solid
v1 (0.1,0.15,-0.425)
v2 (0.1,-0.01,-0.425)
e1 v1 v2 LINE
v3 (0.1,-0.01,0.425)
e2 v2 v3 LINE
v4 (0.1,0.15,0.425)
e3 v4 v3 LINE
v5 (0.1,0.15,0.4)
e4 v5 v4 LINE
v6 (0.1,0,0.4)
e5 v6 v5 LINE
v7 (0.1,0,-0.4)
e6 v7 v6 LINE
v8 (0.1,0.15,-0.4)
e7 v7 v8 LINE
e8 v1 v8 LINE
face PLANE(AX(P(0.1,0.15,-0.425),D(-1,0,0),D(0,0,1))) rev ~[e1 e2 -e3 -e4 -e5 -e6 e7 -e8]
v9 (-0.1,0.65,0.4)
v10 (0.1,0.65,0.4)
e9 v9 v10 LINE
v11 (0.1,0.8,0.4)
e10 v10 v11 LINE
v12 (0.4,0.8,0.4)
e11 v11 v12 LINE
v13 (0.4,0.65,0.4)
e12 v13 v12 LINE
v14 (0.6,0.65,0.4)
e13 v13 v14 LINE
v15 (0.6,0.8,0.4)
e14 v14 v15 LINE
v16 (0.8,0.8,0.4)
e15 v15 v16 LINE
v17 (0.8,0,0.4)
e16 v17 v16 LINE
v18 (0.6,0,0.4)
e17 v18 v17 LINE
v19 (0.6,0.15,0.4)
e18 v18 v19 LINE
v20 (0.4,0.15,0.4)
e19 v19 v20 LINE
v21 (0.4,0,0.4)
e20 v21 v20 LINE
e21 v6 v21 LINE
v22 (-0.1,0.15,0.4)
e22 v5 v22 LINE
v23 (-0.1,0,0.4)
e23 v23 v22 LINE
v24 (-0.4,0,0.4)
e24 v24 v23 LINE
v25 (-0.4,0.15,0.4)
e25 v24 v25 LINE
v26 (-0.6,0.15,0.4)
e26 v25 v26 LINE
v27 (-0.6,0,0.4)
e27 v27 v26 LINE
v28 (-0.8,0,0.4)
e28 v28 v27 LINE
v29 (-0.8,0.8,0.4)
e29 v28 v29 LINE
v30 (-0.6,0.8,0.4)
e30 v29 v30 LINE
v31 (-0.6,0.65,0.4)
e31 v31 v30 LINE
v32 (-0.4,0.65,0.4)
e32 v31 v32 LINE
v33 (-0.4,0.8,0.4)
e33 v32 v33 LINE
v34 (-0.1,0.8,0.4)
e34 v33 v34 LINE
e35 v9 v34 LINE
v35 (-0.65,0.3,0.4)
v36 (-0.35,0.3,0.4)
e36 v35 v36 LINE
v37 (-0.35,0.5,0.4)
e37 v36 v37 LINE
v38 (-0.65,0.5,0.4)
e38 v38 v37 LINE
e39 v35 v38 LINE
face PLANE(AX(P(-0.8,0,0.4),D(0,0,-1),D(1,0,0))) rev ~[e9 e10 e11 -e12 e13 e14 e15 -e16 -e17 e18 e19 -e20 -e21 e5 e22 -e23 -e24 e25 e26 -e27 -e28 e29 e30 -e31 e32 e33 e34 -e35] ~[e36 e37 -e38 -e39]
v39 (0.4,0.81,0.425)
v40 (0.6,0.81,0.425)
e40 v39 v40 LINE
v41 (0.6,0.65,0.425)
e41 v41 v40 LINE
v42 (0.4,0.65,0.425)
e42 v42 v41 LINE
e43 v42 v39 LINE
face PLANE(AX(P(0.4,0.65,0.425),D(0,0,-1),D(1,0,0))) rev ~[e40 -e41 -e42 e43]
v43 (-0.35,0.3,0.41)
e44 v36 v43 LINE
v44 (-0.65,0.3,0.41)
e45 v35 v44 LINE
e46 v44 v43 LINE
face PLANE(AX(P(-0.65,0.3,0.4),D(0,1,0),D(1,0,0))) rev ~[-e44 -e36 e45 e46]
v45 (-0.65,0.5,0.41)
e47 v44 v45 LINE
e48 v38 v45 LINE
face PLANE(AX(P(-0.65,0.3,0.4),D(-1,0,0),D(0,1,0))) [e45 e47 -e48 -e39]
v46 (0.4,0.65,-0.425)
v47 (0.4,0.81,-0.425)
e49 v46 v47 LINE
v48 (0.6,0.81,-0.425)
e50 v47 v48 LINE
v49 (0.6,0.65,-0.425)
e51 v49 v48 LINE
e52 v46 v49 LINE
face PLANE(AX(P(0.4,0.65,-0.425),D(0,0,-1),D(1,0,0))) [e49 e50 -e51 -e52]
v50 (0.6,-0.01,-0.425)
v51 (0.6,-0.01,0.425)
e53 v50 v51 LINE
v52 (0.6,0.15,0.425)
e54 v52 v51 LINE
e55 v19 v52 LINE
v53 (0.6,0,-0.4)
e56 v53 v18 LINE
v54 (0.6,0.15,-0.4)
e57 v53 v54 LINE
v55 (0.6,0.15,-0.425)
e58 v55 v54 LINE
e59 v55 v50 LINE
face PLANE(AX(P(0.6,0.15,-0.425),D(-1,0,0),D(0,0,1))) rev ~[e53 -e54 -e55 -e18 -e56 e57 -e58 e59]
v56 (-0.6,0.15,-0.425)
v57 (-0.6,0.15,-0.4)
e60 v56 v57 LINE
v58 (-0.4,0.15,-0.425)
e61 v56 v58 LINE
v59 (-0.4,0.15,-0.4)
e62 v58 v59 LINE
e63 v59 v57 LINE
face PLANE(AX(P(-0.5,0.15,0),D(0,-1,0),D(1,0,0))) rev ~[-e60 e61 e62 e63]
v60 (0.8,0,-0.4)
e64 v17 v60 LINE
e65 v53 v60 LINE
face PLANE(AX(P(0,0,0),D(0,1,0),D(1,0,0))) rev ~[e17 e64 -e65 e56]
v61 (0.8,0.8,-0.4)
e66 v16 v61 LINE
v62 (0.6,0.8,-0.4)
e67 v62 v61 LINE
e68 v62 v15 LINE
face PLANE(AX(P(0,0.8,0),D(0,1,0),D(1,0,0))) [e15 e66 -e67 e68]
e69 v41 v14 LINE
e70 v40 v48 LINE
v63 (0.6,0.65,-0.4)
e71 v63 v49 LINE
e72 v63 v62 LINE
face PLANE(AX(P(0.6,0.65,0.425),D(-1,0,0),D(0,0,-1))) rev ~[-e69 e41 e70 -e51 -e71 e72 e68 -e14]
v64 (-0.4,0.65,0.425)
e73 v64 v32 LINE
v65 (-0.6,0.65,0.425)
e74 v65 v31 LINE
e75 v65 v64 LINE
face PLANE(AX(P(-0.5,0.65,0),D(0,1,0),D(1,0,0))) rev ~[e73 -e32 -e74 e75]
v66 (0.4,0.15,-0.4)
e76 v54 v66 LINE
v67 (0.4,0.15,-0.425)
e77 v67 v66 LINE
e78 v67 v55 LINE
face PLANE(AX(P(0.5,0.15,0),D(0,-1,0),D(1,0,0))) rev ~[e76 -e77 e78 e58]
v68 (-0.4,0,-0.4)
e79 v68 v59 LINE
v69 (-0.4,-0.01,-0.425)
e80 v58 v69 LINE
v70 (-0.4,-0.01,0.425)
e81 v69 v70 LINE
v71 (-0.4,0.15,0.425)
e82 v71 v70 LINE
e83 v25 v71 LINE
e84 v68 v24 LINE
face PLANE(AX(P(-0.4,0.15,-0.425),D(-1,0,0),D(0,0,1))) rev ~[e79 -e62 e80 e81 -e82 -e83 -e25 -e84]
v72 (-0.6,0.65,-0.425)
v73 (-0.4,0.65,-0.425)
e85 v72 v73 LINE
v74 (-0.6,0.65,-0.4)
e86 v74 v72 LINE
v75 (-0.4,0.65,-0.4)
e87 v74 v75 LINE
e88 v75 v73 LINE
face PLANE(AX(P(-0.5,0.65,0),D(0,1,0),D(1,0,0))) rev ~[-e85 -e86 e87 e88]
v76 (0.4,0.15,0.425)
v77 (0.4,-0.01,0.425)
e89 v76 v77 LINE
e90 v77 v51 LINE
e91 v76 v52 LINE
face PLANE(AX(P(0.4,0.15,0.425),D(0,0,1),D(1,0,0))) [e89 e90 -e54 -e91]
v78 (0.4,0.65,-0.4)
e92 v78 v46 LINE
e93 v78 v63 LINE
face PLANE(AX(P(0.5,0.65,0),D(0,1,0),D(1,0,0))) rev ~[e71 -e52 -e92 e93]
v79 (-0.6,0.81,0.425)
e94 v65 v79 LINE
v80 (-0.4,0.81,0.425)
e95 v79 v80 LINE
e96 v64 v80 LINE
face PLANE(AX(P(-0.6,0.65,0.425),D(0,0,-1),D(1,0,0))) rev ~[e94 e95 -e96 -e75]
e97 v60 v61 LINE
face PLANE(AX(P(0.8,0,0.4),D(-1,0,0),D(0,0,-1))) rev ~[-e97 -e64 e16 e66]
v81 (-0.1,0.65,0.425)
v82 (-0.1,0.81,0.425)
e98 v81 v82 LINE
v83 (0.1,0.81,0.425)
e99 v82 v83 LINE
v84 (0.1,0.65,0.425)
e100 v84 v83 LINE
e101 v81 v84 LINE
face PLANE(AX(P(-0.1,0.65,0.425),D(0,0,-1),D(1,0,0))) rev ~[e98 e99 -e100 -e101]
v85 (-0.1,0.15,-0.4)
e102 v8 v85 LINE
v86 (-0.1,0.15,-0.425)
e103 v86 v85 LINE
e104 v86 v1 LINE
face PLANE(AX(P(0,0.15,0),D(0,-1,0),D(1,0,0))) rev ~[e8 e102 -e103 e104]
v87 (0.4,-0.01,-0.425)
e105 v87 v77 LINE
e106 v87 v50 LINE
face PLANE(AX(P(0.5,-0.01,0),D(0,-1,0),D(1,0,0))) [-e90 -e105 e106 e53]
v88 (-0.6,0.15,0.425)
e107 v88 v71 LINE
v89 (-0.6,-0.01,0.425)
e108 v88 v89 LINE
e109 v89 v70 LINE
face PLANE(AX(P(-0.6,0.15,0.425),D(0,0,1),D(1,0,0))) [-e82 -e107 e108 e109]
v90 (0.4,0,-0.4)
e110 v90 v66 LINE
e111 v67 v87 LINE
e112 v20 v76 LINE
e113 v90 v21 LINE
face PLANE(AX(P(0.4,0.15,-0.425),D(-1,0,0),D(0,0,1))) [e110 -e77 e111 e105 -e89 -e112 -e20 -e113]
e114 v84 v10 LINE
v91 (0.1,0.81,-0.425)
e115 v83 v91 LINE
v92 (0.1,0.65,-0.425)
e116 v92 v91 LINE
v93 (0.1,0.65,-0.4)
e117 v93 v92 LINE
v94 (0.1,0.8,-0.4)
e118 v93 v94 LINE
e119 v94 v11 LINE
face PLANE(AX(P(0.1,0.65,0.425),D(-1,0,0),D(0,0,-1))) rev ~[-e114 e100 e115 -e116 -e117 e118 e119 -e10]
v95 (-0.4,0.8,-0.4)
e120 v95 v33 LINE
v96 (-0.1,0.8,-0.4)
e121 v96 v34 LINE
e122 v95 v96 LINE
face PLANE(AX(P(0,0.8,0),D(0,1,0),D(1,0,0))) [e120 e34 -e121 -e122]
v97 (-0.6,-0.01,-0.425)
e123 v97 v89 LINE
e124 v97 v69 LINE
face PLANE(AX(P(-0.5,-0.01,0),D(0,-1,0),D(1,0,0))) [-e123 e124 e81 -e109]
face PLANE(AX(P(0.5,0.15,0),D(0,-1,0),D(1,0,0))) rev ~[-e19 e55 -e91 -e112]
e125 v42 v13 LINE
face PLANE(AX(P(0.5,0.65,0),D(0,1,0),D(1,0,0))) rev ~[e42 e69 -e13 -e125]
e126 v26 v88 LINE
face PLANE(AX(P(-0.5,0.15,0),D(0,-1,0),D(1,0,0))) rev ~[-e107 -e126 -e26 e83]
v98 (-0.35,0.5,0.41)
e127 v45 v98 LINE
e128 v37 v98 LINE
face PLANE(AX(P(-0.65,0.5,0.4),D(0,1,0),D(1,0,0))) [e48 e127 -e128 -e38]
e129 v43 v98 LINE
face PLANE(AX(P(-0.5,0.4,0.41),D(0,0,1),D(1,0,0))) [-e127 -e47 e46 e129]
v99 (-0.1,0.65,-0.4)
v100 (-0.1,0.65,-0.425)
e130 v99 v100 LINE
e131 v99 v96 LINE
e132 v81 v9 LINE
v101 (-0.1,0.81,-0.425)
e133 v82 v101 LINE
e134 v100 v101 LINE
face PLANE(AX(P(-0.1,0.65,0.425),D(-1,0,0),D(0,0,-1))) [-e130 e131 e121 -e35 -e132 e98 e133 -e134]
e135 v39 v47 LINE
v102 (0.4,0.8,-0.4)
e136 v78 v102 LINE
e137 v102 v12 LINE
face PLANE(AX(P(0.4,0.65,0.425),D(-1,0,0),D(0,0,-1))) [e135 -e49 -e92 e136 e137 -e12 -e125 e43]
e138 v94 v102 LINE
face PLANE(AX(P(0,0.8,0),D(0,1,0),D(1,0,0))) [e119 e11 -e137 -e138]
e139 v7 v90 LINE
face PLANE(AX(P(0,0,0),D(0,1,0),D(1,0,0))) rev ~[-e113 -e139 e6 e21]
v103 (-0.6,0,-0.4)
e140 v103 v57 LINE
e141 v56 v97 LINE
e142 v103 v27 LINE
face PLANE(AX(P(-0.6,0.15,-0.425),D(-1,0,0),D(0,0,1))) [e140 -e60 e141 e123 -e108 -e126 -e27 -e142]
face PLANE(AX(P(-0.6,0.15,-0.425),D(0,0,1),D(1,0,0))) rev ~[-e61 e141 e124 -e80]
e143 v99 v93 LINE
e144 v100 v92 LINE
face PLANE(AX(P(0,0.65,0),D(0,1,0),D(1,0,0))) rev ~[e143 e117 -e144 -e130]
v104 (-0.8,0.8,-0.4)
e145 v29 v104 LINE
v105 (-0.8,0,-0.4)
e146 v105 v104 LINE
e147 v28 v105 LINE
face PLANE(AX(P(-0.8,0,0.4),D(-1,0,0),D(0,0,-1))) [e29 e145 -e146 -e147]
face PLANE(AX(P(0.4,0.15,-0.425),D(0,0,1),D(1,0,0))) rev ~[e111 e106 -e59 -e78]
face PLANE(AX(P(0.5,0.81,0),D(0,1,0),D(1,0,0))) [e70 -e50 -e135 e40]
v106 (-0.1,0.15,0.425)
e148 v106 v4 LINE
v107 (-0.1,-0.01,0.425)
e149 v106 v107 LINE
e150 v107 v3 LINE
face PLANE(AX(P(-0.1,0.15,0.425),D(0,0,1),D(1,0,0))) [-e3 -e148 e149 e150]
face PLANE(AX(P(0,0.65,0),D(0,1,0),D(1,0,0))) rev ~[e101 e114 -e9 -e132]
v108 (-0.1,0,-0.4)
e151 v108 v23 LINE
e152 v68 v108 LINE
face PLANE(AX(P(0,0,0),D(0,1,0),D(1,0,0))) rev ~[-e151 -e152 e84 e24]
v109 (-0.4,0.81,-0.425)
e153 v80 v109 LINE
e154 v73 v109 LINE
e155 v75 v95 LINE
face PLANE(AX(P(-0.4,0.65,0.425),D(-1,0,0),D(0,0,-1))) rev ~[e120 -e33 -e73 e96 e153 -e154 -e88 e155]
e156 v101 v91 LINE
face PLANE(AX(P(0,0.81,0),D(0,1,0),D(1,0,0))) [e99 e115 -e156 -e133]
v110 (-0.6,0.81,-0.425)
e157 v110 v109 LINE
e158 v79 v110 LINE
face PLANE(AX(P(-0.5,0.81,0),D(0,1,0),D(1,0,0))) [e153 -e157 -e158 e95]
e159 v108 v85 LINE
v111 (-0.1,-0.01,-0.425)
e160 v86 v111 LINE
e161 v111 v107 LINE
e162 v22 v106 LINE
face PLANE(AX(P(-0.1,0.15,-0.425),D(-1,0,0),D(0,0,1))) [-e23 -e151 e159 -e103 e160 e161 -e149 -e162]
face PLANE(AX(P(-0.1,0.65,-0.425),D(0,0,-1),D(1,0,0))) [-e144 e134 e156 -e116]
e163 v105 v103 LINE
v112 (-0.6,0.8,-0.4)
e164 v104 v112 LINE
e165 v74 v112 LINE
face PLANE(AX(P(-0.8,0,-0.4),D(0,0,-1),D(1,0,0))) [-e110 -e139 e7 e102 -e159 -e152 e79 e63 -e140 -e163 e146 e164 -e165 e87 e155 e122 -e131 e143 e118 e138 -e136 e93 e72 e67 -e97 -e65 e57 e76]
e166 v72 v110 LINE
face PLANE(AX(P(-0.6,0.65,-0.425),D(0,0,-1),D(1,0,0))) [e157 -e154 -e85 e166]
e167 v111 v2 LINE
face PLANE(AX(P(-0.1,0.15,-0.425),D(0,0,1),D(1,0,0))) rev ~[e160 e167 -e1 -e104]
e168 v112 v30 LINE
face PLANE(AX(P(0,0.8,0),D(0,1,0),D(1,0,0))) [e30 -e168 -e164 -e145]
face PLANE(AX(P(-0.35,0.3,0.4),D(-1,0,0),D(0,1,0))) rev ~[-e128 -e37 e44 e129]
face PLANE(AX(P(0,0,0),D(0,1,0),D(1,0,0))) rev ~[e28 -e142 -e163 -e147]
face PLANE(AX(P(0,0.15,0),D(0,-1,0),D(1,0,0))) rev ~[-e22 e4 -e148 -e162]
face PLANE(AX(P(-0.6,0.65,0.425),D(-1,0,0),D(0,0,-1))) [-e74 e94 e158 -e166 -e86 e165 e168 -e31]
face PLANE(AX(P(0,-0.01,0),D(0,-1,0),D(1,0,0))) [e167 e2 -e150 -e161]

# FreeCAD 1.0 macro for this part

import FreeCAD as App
import Part
import Sketcher

V = App.Vector
Q = App.Units.Quantity


def add_polygon(sketch, points):
    """Adds a closed chain of lines whose ends are joined by coincident constraints."""
    first, n = sketch.GeometryCount, len(points)
    for a, b in zip(points, points[1:] + points[:1]):
        sketch.addGeometry(Part.LineSegment(App.Vector(*a, 0), App.Vector(*b, 0)), False)
    for i in range(n):
        sketch.addConstraint(Sketcher.Constraint("Coincident", first + i, 2, first + (i + 1) % n, 1))

doc = App.newDocument("Part")
body = doc.addObject("PartDesign::Body", "Body")

# Sketch on XZ plane
sketch1 = doc.addObject("Sketcher::SketchObject", "Sketch")
body.addObject(sketch1)
sketch1.AttachmentSupport = (doc.XZ_Plane, [""])
sketch1.MapMode = "FlatFace"
add_polygon(sketch1, [(-0.8, -0.4), (-0.8, 0.4), (0.8, 0.4), (0.8, -0.4)])  # lines 0-3
sketch1.addConstraint(Sketcher.Constraint("Vertical", 0))
sketch1.addConstraint(Sketcher.Constraint("Horizontal", 1))
sketch1.addConstraint(Sketcher.Constraint("Vertical", 2))
sketch1.addConstraint(Sketcher.Constraint("Horizontal", 3))
sketch1.addConstraint(Sketcher.Constraint("Symmetric", 0, 2, 2, 2, -1, 1))
sketch1.addConstraint(Sketcher.Constraint("DistanceX", 1, 1, 1, 2, Q("1.6 mm")))
sketch1.addConstraint(Sketcher.Constraint("DistanceY", 0, 1, 0, 2, Q("0.8 mm")))
pad1 = doc.addObject("PartDesign::Pad", "Pad")
body.addObject(pad1)
pad1.Profile = sketch1
pad1.Length = 0.8
pad1.Reversed = True

# Sketch on XZ plane
sketch2 = doc.addObject("Sketcher::SketchObject", "Sketch001")
body.addObject(sketch2)
sketch2.AttachmentSupport = (doc.XZ_Plane, [""])
sketch2.MapMode = "FlatFace"
sketch2.AttachmentOffset = App.Placement(V(0, 0, -0.65), App.Rotation())
add_polygon(sketch2, [(-0.6, -0.42), (-0.6, 0.42), (-0.4, 0.42), (-0.4, -0.42)])  # lines 0-3
add_polygon(sketch2, [(-0.1, -0.42), (-0.1, 0.42), (0.1, 0.42), (0.1, -0.42)])  # lines 4-7
add_polygon(sketch2, [(0.4, -0.42), (0.4, 0.42), (0.6, 0.42), (0.6, -0.42)])  # lines 8-11
sketch2.addConstraint(Sketcher.Constraint("Vertical", 0))
sketch2.addConstraint(Sketcher.Constraint("Horizontal", 1))
sketch2.addConstraint(Sketcher.Constraint("Vertical", 2))
sketch2.addConstraint(Sketcher.Constraint("Horizontal", 3))
sketch2.addConstraint(Sketcher.Constraint("Vertical", 4))
sketch2.addConstraint(Sketcher.Constraint("Horizontal", 5))
sketch2.addConstraint(Sketcher.Constraint("Vertical", 6))
sketch2.addConstraint(Sketcher.Constraint("Horizontal", 7))
sketch2.addConstraint(Sketcher.Constraint("Vertical", 8))
sketch2.addConstraint(Sketcher.Constraint("Horizontal", 9))
sketch2.addConstraint(Sketcher.Constraint("Vertical", 10))
sketch2.addConstraint(Sketcher.Constraint("Horizontal", 11))
sketch2.addConstraint(Sketcher.Constraint("Symmetric", 4, 2, 6, 2, -1, 1))
sketch2.addConstraint(Sketcher.Constraint("Symmetric", 2, 2, 8, 2, -1, 1))
sketch2.addConstraint(Sketcher.Constraint("Symmetric", 0, 2, 10, 2, -1, 1))
sketch2.addConstraint(Sketcher.Constraint("Horizontal", 1, 2, 4, 2))
sketch2.addConstraint(Sketcher.Constraint("Horizontal", 3, 2, 6, 2))
sketch2.addConstraint(Sketcher.Constraint("Equal", 3, 5))
sketch2.addConstraint(Sketcher.Constraint("DistanceX", 1, 1, 1, 2, Q("0.2 mm")))
sketch2.addConstraint(Sketcher.Constraint("DistanceX", 1, 2, 9, 2, Q("1 mm")))
sketch2.addConstraint(Sketcher.Constraint("DistanceY", 0, 1, 0, 2, Q("0.85 mm")))
pad2 = doc.addObject("PartDesign::Pad", "Pad001")
body.addObject(pad2)
pad2.Profile = sketch2
pad2.Length = 0.16
pad2.Reversed = True

# Sketch on XZ plane
sketch3 = doc.addObject("Sketcher::SketchObject", "Sketch002")
body.addObject(sketch3)
sketch3.AttachmentSupport = (doc.XZ_Plane, [""])
sketch3.MapMode = "FlatFace"
sketch3.AttachmentOffset = App.Placement(V(0, 0, -0.15), App.Rotation())
add_polygon(sketch3, [(-0.6, 0.42), (-0.6, -0.42), (-0.4, -0.42), (-0.4, 0.42)])  # lines 0-3
add_polygon(sketch3, [(-0.1, 0.42), (-0.1, -0.42), (0.1, -0.42), (0.1, 0.42)])  # lines 4-7
add_polygon(sketch3, [(0.4, 0.42), (0.4, -0.42), (0.6, -0.42), (0.6, 0.42)])  # lines 8-11
sketch3.addConstraint(Sketcher.Constraint("Vertical", 0))
sketch3.addConstraint(Sketcher.Constraint("Horizontal", 1))
sketch3.addConstraint(Sketcher.Constraint("Vertical", 2))
sketch3.addConstraint(Sketcher.Constraint("Horizontal", 3))
sketch3.addConstraint(Sketcher.Constraint("Vertical", 4))
sketch3.addConstraint(Sketcher.Constraint("Horizontal", 5))
sketch3.addConstraint(Sketcher.Constraint("Vertical", 6))
sketch3.addConstraint(Sketcher.Constraint("Horizontal", 7))
sketch3.addConstraint(Sketcher.Constraint("Vertical", 8))
sketch3.addConstraint(Sketcher.Constraint("Horizontal", 9))
sketch3.addConstraint(Sketcher.Constraint("Vertical", 10))
sketch3.addConstraint(Sketcher.Constraint("Horizontal", 11))
sketch3.addConstraint(Sketcher.Constraint("Symmetric", 4, 2, 6, 2, -1, 1))
sketch3.addConstraint(Sketcher.Constraint("Symmetric", 2, 2, 8, 2, -1, 1))
sketch3.addConstraint(Sketcher.Constraint("Symmetric", 0, 2, 10, 2, -1, 1))
sketch3.addConstraint(Sketcher.Constraint("Horizontal", 1, 2, 4, 2))
sketch3.addConstraint(Sketcher.Constraint("Horizontal", 3, 2, 6, 2))
sketch3.addConstraint(Sketcher.Constraint("Equal", 3, 5))
sketch3.addConstraint(Sketcher.Constraint("DistanceX", 1, 1, 1, 2, Q("0.2 mm")))
sketch3.addConstraint(Sketcher.Constraint("DistanceX", 1, 2, 9, 2, Q("1 mm")))
sketch3.addConstraint(Sketcher.Constraint("DistanceY", 0, 2, 0, 1, Q("0.85 mm")))
pad3 = doc.addObject("PartDesign::Pad", "Pad002")
body.addObject(pad3)
pad3.Profile = sketch3
pad3.Length = 0.16

# Sketch on XY plane
sketch4 = doc.addObject("Sketcher::SketchObject", "Sketch003")
body.addObject(sketch4)
sketch4.AttachmentSupport = (doc.XY_Plane, [""])
sketch4.MapMode = "FlatFace"
sketch4.AttachmentOffset = App.Placement(V(0, 0, 0.4), App.Rotation())
add_polygon(sketch4, [(-0.65, 0.5), (-0.65, 0.3), (-0.35, 0.3), (-0.35, 0.5)])  # lines 0-3
sketch4.addConstraint(Sketcher.Constraint("Vertical", 0))
sketch4.addConstraint(Sketcher.Constraint("Horizontal", 1))
sketch4.addConstraint(Sketcher.Constraint("Vertical", 2))
sketch4.addConstraint(Sketcher.Constraint("Horizontal", 3))
sketch4.addConstraint(Sketcher.Constraint("DistanceX", 1, 1, 1, 2, Q("0.3 mm")))
sketch4.addConstraint(Sketcher.Constraint("DistanceY", 0, 2, 0, 1, Q("0.2 mm")))
sketch4.addConstraint(Sketcher.Constraint("DistanceY", -1, 1, 0, 2, Q("0.3 mm")))
sketch4.addConstraint(Sketcher.Constraint("DistanceX", 0, 2, -1, 1, Q("0.65 mm")))
pad4 = doc.addObject("PartDesign::Pad", "Pad003")
body.addObject(pad4)
pad4.Profile = sketch4
pad4.Length = 0.01

doc.recompute()
